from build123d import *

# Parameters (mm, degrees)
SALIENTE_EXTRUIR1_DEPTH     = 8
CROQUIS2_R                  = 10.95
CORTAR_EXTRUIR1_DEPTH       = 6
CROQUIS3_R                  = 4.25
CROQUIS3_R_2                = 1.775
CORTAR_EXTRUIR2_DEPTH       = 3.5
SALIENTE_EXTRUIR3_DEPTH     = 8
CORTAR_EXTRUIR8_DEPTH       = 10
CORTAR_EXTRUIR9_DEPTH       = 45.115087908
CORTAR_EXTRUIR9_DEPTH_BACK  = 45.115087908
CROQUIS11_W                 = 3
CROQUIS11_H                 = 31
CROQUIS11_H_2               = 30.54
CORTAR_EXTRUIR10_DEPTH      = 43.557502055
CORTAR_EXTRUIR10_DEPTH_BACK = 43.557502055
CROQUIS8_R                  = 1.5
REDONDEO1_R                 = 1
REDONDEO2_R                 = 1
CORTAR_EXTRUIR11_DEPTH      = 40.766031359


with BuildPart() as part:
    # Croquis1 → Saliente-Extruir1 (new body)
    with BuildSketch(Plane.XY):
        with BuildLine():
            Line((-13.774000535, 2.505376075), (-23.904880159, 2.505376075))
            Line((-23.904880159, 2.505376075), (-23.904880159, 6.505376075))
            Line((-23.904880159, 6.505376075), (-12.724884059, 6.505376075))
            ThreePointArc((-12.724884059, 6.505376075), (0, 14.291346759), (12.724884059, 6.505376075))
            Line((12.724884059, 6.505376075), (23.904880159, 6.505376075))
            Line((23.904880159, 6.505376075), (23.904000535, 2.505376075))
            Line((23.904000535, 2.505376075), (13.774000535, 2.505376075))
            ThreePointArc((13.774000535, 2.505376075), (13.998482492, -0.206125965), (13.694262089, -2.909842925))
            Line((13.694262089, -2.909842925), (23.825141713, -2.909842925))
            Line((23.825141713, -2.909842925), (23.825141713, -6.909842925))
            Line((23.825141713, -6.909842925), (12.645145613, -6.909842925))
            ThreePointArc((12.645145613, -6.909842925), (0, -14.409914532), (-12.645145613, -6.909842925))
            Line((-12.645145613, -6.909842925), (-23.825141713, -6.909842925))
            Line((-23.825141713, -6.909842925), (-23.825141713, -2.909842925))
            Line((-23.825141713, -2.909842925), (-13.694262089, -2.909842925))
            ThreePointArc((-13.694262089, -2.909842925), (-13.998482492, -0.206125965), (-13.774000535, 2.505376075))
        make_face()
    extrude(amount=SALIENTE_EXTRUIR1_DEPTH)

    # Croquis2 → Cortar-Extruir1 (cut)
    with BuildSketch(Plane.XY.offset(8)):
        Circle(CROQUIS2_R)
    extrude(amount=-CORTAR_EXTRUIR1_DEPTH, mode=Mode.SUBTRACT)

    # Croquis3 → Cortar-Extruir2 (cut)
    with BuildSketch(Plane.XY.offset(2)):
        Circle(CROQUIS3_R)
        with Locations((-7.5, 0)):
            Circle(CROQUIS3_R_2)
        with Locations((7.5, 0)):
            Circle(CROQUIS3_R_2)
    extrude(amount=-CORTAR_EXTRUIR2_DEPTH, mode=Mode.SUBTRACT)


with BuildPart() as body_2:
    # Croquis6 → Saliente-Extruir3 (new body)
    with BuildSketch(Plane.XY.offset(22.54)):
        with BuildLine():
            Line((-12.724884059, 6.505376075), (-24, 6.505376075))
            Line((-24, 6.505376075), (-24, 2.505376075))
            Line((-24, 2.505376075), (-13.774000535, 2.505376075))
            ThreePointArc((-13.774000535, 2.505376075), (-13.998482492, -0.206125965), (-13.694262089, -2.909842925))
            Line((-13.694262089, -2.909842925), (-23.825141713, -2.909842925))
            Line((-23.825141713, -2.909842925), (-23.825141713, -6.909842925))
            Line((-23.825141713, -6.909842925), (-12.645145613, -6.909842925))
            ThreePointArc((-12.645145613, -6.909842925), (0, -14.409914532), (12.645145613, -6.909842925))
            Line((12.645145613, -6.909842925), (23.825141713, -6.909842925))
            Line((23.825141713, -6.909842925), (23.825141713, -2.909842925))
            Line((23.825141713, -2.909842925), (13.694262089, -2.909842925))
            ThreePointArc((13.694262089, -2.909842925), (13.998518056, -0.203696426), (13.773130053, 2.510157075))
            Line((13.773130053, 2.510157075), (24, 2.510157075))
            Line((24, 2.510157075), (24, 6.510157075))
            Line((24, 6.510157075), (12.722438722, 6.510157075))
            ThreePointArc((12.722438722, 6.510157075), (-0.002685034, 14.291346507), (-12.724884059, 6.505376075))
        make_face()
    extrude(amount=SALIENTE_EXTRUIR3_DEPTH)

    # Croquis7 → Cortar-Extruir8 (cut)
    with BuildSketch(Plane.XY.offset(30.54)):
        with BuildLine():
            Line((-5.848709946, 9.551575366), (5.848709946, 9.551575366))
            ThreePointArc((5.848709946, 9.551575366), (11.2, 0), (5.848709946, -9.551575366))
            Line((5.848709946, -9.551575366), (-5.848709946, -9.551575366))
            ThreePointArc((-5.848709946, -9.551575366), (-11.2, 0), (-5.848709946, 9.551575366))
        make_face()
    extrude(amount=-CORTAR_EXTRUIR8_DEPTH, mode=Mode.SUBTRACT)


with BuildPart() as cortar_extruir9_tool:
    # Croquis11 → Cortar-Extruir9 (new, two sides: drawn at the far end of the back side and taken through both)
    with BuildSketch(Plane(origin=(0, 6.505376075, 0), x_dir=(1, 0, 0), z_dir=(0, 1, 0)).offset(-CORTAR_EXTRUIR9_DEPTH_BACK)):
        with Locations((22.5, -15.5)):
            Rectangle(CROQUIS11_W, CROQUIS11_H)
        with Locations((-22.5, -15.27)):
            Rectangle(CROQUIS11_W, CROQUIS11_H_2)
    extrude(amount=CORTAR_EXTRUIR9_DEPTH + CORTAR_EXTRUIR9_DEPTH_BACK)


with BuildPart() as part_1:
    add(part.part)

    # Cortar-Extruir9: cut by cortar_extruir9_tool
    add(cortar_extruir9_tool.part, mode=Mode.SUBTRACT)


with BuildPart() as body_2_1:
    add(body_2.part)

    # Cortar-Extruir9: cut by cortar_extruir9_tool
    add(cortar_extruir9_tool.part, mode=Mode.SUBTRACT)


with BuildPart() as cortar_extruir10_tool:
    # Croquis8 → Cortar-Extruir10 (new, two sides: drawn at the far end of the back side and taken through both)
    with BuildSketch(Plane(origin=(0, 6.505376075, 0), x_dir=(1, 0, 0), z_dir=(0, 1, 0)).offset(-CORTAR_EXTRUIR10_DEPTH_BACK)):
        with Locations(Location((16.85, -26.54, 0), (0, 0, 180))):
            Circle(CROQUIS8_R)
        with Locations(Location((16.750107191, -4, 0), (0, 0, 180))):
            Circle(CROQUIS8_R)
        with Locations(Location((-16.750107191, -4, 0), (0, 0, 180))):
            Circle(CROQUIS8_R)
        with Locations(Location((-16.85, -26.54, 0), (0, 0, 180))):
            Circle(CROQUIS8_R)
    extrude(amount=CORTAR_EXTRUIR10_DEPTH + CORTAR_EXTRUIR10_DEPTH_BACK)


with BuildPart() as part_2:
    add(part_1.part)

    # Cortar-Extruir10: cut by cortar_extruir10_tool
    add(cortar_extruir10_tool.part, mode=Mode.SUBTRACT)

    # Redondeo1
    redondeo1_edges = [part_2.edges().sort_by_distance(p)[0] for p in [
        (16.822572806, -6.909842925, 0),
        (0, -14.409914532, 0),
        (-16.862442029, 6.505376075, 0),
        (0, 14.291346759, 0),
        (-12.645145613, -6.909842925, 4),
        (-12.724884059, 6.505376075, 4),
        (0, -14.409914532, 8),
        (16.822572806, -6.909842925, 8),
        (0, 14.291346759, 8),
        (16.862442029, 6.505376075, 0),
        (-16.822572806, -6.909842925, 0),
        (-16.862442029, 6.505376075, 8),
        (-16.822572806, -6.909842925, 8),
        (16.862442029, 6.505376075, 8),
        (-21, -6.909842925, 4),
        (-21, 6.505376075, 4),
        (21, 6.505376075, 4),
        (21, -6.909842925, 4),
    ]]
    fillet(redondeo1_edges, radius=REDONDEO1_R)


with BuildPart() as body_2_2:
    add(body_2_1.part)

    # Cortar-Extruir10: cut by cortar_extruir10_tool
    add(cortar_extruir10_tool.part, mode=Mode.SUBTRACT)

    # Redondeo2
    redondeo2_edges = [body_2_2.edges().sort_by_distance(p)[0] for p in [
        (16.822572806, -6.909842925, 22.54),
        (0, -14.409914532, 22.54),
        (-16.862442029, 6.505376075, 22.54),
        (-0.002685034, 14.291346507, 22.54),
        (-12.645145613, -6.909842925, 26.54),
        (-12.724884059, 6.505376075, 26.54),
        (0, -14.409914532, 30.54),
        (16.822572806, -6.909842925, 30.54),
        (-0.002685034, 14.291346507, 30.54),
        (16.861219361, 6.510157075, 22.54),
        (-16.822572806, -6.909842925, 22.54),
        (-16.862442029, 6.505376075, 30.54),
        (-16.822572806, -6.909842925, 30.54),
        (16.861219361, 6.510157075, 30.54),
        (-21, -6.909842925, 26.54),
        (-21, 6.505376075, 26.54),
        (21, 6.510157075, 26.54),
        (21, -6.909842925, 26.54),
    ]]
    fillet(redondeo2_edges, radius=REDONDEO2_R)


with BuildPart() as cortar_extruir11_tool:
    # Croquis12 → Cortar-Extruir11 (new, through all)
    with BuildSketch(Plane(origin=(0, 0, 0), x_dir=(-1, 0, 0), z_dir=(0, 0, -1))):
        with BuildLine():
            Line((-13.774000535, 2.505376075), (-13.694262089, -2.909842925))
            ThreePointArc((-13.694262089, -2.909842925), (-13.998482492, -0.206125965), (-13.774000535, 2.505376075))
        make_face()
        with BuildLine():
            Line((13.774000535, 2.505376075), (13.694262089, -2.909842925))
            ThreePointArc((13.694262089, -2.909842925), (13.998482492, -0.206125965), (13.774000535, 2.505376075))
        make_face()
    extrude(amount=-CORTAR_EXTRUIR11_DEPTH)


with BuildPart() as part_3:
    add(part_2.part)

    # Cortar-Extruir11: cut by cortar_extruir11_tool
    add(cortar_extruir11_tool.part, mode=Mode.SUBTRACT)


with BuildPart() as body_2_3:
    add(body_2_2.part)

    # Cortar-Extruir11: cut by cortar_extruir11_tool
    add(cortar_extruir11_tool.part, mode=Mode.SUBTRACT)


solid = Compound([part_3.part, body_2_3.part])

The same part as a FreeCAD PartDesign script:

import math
import FreeCAD as App
import Part
import Sketcher
Q = App.Units.Quantity


def edges_at(feature, points):
    """Names of the edges that pass closest to the given points."""
    edges = feature.Shape.Edges
    near = lambda p: min(range(len(edges)), key=lambda i: edges[i].distToShape(Part.Vertex(*p))[0])
    return sorted({f"Edge{near(p) + 1}" for p in points})

doc = App.newDocument("Part")
body = doc.addObject("PartDesign::Body", "Body")

# Sketch on XY plane
sketch1 = doc.addObject("Sketcher::SketchObject", "Sketch")
body.addObject(sketch1)
sketch1.AttachmentSupport = (doc.XY_Plane, [""])
sketch1.MapMode = "FlatFace"
sketch1.addGeometry([
    Part.LineSegment(App.Vector(-23.9, 2.5, 0), App.Vector(-13.8, 2.5, 0)),  # 0
    Part.ArcOfCircle(Part.Circle(App.Vector(0, 0, 0), App.Vector(0, 0, 1), 14), math.radians(170), math.radians(192)),  # 1
    Part.LineSegment(App.Vector(-13.7, -2.9, 0), App.Vector(-23.8, -2.9, 0)),  # 2
    Part.LineSegment(App.Vector(-23.8, -2.9, 0), App.Vector(-23.8, -6.9, 0)),  # 3
    Part.LineSegment(App.Vector(-23.8, -6.9, 0), App.Vector(-12.6, -6.9, 0)),  # 4
    Part.ArcOfCircle(Part.Circle(App.Vector(0, 0, 0), App.Vector(0, 0, 1), 14.4), math.radians(-151), math.radians(-29)),  # 5
    Part.LineSegment(App.Vector(12.6, -6.9, 0), App.Vector(23.8, -6.9, 0)),  # 6
    Part.LineSegment(App.Vector(23.8, -6.9, 0), App.Vector(23.8, -2.9, 0)),  # 7
    Part.LineSegment(App.Vector(23.8, -2.9, 0), App.Vector(13.7, -2.9, 0)),  # 8
    Part.ArcOfCircle(Part.Circle(App.Vector(0, 0, 0), App.Vector(0, 0, 1), 14), math.radians(-12), math.radians(10)),  # 9
    Part.LineSegment(App.Vector(13.8, 2.5, 0), App.Vector(23.9, 2.5, 0)),  # 10
    Part.LineSegment(App.Vector(23.9, 2.5, 0), App.Vector(23.9, 6.5, 0)),  # 11
    Part.LineSegment(App.Vector(23.9, 6.5, 0), App.Vector(12.7, 6.5, 0)),  # 12
    Part.ArcOfCircle(Part.Circle(App.Vector(0, 0, 0), App.Vector(0, 0, 1), 14.3), math.radians(27), math.radians(153)),  # 13
    Part.LineSegment(App.Vector(-12.7, 6.5, 0), App.Vector(-23.9, 6.5, 0)),  # 14
    Part.LineSegment(App.Vector(-23.9, 6.5, 0), App.Vector(-23.9, 2.5, 0)),  # 15
], False)
sketch1.addConstraint([
    Sketcher.Constraint("Coincident", 0, 2, 1, 1),
    Sketcher.Constraint("Coincident", 1, 2, 2, 1),
    Sketcher.Constraint("Coincident", 2, 2, 3, 1),
    Sketcher.Constraint("Coincident", 3, 2, 4, 1),
    Sketcher.Constraint("Coincident", 4, 2, 5, 1),
    Sketcher.Constraint("Coincident", 5, 2, 6, 1),
    Sketcher.Constraint("Coincident", 6, 2, 7, 1),
    Sketcher.Constraint("Coincident", 7, 2, 8, 1),
    Sketcher.Constraint("Coincident", 8, 2, 9, 1),
    Sketcher.Constraint("Coincident", 9, 2, 10, 1),
    Sketcher.Constraint("Coincident", 10, 2, 11, 1),
    Sketcher.Constraint("Coincident", 11, 2, 12, 1),
    Sketcher.Constraint("Coincident", 12, 2, 13, 1),
    Sketcher.Constraint("Coincident", 13, 2, 14, 1),
    Sketcher.Constraint("Coincident", 14, 2, 15, 1),
    Sketcher.Constraint("Coincident", 15, 2, 0, 1),
    Sketcher.Constraint("Horizontal", 0),
    Sketcher.Constraint("Horizontal", 2),
    Sketcher.Constraint("Vertical", 3),
    Sketcher.Constraint("Horizontal", 4),
    Sketcher.Constraint("Horizontal", 6),
    Sketcher.Constraint("Vertical", 7),
    Sketcher.Constraint("Horizontal", 8),
    Sketcher.Constraint("Horizontal", 10),
    Sketcher.Constraint("Horizontal", 12),
    Sketcher.Constraint("Horizontal", 14),
    Sketcher.Constraint("Vertical", 15),
    Sketcher.Constraint("Coincident", 1, 3, -1, 1),
    Sketcher.Constraint("Coincident", 5, 3, -1, 1),
    Sketcher.Constraint("Coincident", 9, 3, -1, 1),
    Sketcher.Constraint("Coincident", 13, 3, -1, 1),
    Sketcher.Constraint("Equal", 1, 9),
    Sketcher.Constraint("Symmetric", 3, 2, 6, 2, -2),
    Sketcher.Constraint("Symmetric", 11, 2, 14, 2, -2),
    Sketcher.Constraint("Horizontal", 2, 2, 7, 2),
    Sketcher.Constraint("Horizontal", 0, 2, 9, 2),
    Sketcher.Constraint("Equal", 0, 2),
    Sketcher.Constraint("Equal", 6, 12),
    Sketcher.Constraint("Equal", 7, 15),
    Sketcher.Constraint("Radius", 1, Q("14 mm")),
    Sketcher.Constraint("DistanceY", 3, 2, 3, 1, Q("4 mm")),
    Sketcher.Constraint("DistanceX", 10, 1, 10, 2, Q("10.13 mm")),
    Sketcher.Constraint("DistanceX", 0, 2, -1, 1, Q("13.774001 mm")),
    Sketcher.Constraint("Radius", 5, Q("14.409915 mm")),
    Sketcher.Constraint("Radius", 13, Q("14.291347 mm")),
    Sketcher.Constraint("DistanceX", 0, 1, 0, 2, Q("10.13088 mm")),
])
pad1 = doc.addObject("PartDesign::Pad", "Pad")
body.addObject(pad1)
pad1.Profile = sketch1
pad1.Length = 8

# Sketch on XY plane
sketch2 = doc.addObject("Sketcher::SketchObject", "Sketch001")
body.addObject(sketch2)
sketch2.AttachmentSupport = (doc.XY_Plane, [""])
sketch2.MapMode = "FlatFace"
sketch2.AttachmentOffset = App.Placement(App.Vector(0, 0, 8), App.Rotation())
sketch2.addGeometry(Part.Circle(App.Vector(0, 0, 0), App.Vector(0, 0, 1), 11), False)
sketch2.addConstraint([
    Sketcher.Constraint("Coincident", 0, 3, -1, 1),
    Sketcher.Constraint("Diameter", 0, Q("21.9 mm")),
])
pocket1 = doc.addObject("PartDesign::Pocket", "Pocket")
body.addObject(pocket1)
pocket1.Profile = sketch2
pocket1.Length = 6

# Sketch on XY plane
sketch3 = doc.addObject("Sketcher::SketchObject", "Sketch002")
body.addObject(sketch3)
sketch3.AttachmentSupport = (doc.XY_Plane, [""])
sketch3.MapMode = "FlatFace"
sketch3.AttachmentOffset = App.Placement(App.Vector(0, 0, 2), App.Rotation())
sketch3.addGeometry([
    Part.Circle(App.Vector(0, 0, 0), App.Vector(0, 0, 1), 4.2),
    Part.Circle(App.Vector(-7.5, 0, 0), App.Vector(0, 0, 1), 1.8),
    Part.Circle(App.Vector(7.5, 0, 0), App.Vector(0, 0, 1), 1.8),
], False)
sketch3.addConstraint([
    Sketcher.Constraint("Coincident", 0, 3, -1, 1),
    Sketcher.Constraint("Equal", 1, 2),
    Sketcher.Constraint("Symmetric", 1, 3, 2, 3, -1, 1),
    Sketcher.Constraint("PointOnObject", 1, 3, -1),
    Sketcher.Constraint("Diameter", 0, Q("8.5 mm")),
    Sketcher.Constraint("Diameter", 1, Q("3.55 mm")),
    Sketcher.Constraint("DistanceX", 1, 3, 2, 3, Q("15 mm")),
])
pocket2 = doc.addObject("PartDesign::Pocket", "Pocket001")
body.addObject(pocket2)
pocket2.Profile = sketch3
pocket2.Length = 3.5
body2 = doc.addObject("PartDesign::Body", "Body001")

# Sketch on XY plane
sketch4 = doc.addObject("Sketcher::SketchObject", "Sketch003")
body2.addObject(sketch4)
sketch4.AttachmentSupport = (doc.getObject("XY_Plane001"), [""])
sketch4.MapMode = "FlatFace"
sketch4.AttachmentOffset = App.Placement(App.Vector(0, 0, 22.54), App.Rotation())
sketch4.addGeometry([
    Part.LineSegment(App.Vector(-12.7, 6.5, 0), App.Vector(-24, 6.5, 0)),  # 0
    Part.LineSegment(App.Vector(-24, 6.5, 0), App.Vector(-24, 2.5, 0)),  # 1
    Part.LineSegment(App.Vector(-24, 2.5, 0), App.Vector(-13.8, 2.5, 0)),  # 2
    Part.ArcOfCircle(Part.Circle(App.Vector(0, 0, 0), App.Vector(0, 0, 1), 14), math.radians(170), math.radians(192)),  # 3
    Part.LineSegment(App.Vector(-13.7, -2.9, 0), App.Vector(-23.8, -2.9, 0)),  # 4
    Part.LineSegment(App.Vector(-23.8, -2.9, 0), App.Vector(-23.8, -6.9, 0)),  # 5
    Part.LineSegment(App.Vector(-23.8, -6.9, 0), App.Vector(-12.6, -6.9, 0)),  # 6
    Part.ArcOfCircle(Part.Circle(App.Vector(0, 0, 0), App.Vector(0, 0, 1), 14.4), math.radians(-151), math.radians(-29)),  # 7
    Part.LineSegment(App.Vector(12.6, -6.9, 0), App.Vector(23.8, -6.9, 0)),  # 8
    Part.LineSegment(App.Vector(23.8, -6.9, 0), App.Vector(23.8, -2.9, 0)),  # 9
    Part.LineSegment(App.Vector(23.8, -2.9, 0), App.Vector(13.7, -2.9, 0)),  # 10
    Part.ArcOfCircle(Part.Circle(App.Vector(0, 0, 0), App.Vector(0, 0, 1), 14), math.radians(-12), math.radians(10)),  # 11
    Part.LineSegment(App.Vector(13.8, 2.5, 0), App.Vector(24, 2.5, 0)),  # 12
    Part.LineSegment(App.Vector(24, 2.5, 0), App.Vector(24, 6.5, 0)),  # 13
    Part.LineSegment(App.Vector(24, 6.5, 0), App.Vector(12.7, 6.5, 0)),  # 14
    Part.ArcOfCircle(Part.Circle(App.Vector(0, 0, 0), App.Vector(0, 0, 1), 14.3), math.radians(27), math.radians(153)),  # 15
], False)
sketch4.addConstraint([
    Sketcher.Constraint("Coincident", 0, 2, 1, 1),
    Sketcher.Constraint("Coincident", 1, 2, 2, 1),
    Sketcher.Constraint("Coincident", 2, 2, 3, 1),
    Sketcher.Constraint("Coincident", 3, 2, 4, 1),
    Sketcher.Constraint("Coincident", 4, 2, 5, 1),
    Sketcher.Constraint("Coincident", 5, 2, 6, 1),
    Sketcher.Constraint("Coincident", 6, 2, 7, 1),
    Sketcher.Constraint("Coincident", 7, 2, 8, 1),
    Sketcher.Constraint("Coincident", 8, 2, 9, 1),
    Sketcher.Constraint("Coincident", 9, 2, 10, 1),
    Sketcher.Constraint("Coincident", 10, 2, 11, 1),
    Sketcher.Constraint("Coincident", 11, 2, 12, 1),
    Sketcher.Constraint("Coincident", 12, 2, 13, 1),
    Sketcher.Constraint("Coincident", 13, 2, 14, 1),
    Sketcher.Constraint("Coincident", 14, 2, 15, 1),
    Sketcher.Constraint("Coincident", 15, 2, 0, 1),
    Sketcher.Constraint("Horizontal", 0),
    Sketcher.Constraint("Vertical", 1),
    Sketcher.Constraint("Horizontal", 2),
    Sketcher.Constraint("Horizontal", 4),
    Sketcher.Constraint("Vertical", 5),
    Sketcher.Constraint("Horizontal", 6),
    Sketcher.Constraint("Horizontal", 8),
    Sketcher.Constraint("Vertical", 9),
    Sketcher.Constraint("Horizontal", 10),
    Sketcher.Constraint("Horizontal", 12),
    Sketcher.Constraint("Vertical", 13),
    Sketcher.Constraint("Horizontal", 14),
    Sketcher.Constraint("Coincident", 3, 3, -1, 1),
    Sketcher.Constraint("Coincident", 7, 3, -1, 1),
    Sketcher.Constraint("Coincident", 11, 3, -1, 1),
    Sketcher.Constraint("Coincident", 15, 3, -1, 1),
    Sketcher.Constraint("Equal", 3, 11),
    Sketcher.Constraint("Symmetric", 5, 2, 8, 2, -2),
    Sketcher.Constraint("Horizontal", 4, 2, 9, 2),
    Sketcher.Constraint("Equal", 1, 5),
    Sketcher.Constraint("Equal", 9, 13),
    Sketcher.Constraint("Radius", 3, Q("14 mm")),
    Sketcher.Constraint("DistanceY", 1, 2, 1, 1, Q("4 mm")),
    Sketcher.Constraint("DistanceX", 0, 2, -1, 1, Q("24 mm")),
    Sketcher.Constraint("DistanceX", -1, 1, 12, 2, Q("24 mm")),
    Sketcher.Constraint("DistanceX", 2, 1, 2, 2, Q("10.225999 mm")),
    Sketcher.Constraint("DistanceY", 10, 2, 11, 2, Q("5.42 mm")),
    Sketcher.Constraint("Radius", 7, Q("14.409915 mm")),
    Sketcher.Constraint("Radius", 15, Q("14.291347 mm")),
    Sketcher.Constraint("DistanceX", 4, 2, 4, 1, Q("10.13088 mm")),
    Sketcher.Constraint("DistanceX", 12, 1, 12, 2, Q("10.22687 mm")),
])
pad2 = doc.addObject("PartDesign::Pad", "Pad001")
body2.addObject(pad2)
pad2.Profile = sketch4
pad2.Length = 8

# Sketch on XY plane
sketch5 = doc.addObject("Sketcher::SketchObject", "Sketch004")
body2.addObject(sketch5)
sketch5.AttachmentSupport = (doc.getObject("XY_Plane001"), [""])
sketch5.MapMode = "FlatFace"
sketch5.AttachmentOffset = App.Placement(App.Vector(0, 0, 30.54), App.Rotation())
sketch5.addGeometry([
    Part.LineSegment(App.Vector(6, 10, 0), App.Vector(-6, 10, 0)),
    Part.ArcOfCircle(Part.Circle(App.Vector(0, 0, 0), App.Vector(0, 0, 1), 11), math.radians(121), math.radians(239)),
    Part.LineSegment(App.Vector(-6, -10, 0), App.Vector(6, -10, 0)),
    Part.ArcOfCircle(Part.Circle(App.Vector(0, 0, 0), App.Vector(0, 0, 1), 11), math.radians(-59), math.radians(59)),
], False)
sketch5.addConstraint([
    Sketcher.Constraint("Coincident", 0, 2, 1, 1),
    Sketcher.Constraint("Coincident", 1, 2, 2, 1),
    Sketcher.Constraint("Coincident", 2, 2, 3, 1),
    Sketcher.Constraint("Coincident", 3, 2, 0, 1),
    Sketcher.Constraint("Horizontal", 0),
    Sketcher.Constraint("Horizontal", 2),
    Sketcher.Constraint("Coincident", 1, 3, -1, 1),
    Sketcher.Constraint("Coincident", 3, 3, -1, 1),
    Sketcher.Constraint("Equal", 1, 3),
    Sketcher.Constraint("Vertical", 0, 2, 1, 2),
    Sketcher.Constraint("Radius", 1, Q("11.2 mm")),
    Sketcher.Constraint("DistanceX", 0, 2, 0, 1, Q("11.69742 mm")),
])
pocket3 = doc.addObject("PartDesign::Pocket", "Pocket002")
body2.addObject(pocket3)
pocket3.Profile = sketch5
pocket3.Length = 10
body3 = doc.addObject("PartDesign::Body", "Body002")
body3.AllowCompound = True

# Sketch on XZ plane
sketch6 = doc.addObject("Sketcher::SketchObject", "Sketch005")
body3.addObject(sketch6)
sketch6.AttachmentSupport = (doc.getObject("XZ_Plane002"), [""])
sketch6.MapMode = "FlatFace"
sketch6.AttachmentOffset = App.Placement(App.Vector(0, 0, -6.505376), App.Rotation())
sketch6.addGeometry([
    Part.LineSegment(App.Vector(21, 0, 0), App.Vector(21, 31, 0)),  # 0
    Part.LineSegment(App.Vector(21, 31, 0), App.Vector(24, 31, 0)),  # 1
    Part.LineSegment(App.Vector(24, 31, 0), App.Vector(24, 0, 0)),  # 2
    Part.LineSegment(App.Vector(24, 0, 0), App.Vector(21, 0, 0)),  # 3
    Part.LineSegment(App.Vector(-24, 0, 0), App.Vector(-24, 30.5, 0)),  # 4
    Part.LineSegment(App.Vector(-24, 30.5, 0), App.Vector(-21, 30.5, 0)),  # 5
    Part.LineSegment(App.Vector(-21, 30.5, 0), App.Vector(-21, 0, 0)),  # 6
    Part.LineSegment(App.Vector(-21, 0, 0), App.Vector(-24, 0, 0)),  # 7
], False)
sketch6.addConstraint([
    Sketcher.Constraint("Coincident", 0, 2, 1, 1),
    Sketcher.Constraint("Coincident", 1, 2, 2, 1),
    Sketcher.Constraint("Coincident", 2, 2, 3, 1),
    Sketcher.Constraint("Coincident", 3, 2, 0, 1),
    Sketcher.Constraint("Coincident", 4, 2, 5, 1),
    Sketcher.Constraint("Coincident", 5, 2, 6, 1),
    Sketcher.Constraint("Coincident", 6, 2, 7, 1),
    Sketcher.Constraint("Coincident", 7, 2, 4, 1),
    Sketcher.Constraint("Vertical", 0),
    Sketcher.Constraint("Horizontal", 1),
    Sketcher.Constraint("Vertical", 2),
    Sketcher.Constraint("Horizontal", 3),
    Sketcher.Constraint("Vertical", 4),
    Sketcher.Constraint("Horizontal", 5),
    Sketcher.Constraint("Vertical", 6),
    Sketcher.Constraint("Horizontal", 7),
    Sketcher.Constraint("Symmetric", 3, 2, 6, 2, -1, 1),
    Sketcher.Constraint("Symmetric", 2, 2, 7, 2, -2),
    Sketcher.Constraint("DistanceX", 1, 1, 1, 2, Q("3 mm")),
    Sketcher.Constraint("DistanceY", 0, 1, 0, 2, Q("31 mm")),
    Sketcher.Constraint("DistanceX", -1, 1, 0, 2, Q("21 mm")),
    Sketcher.Constraint("DistanceY", 4, 1, 4, 2, Q("30.54 mm")),
])
pad3 = doc.addObject("PartDesign::Pad", "Pad002")
body3.addObject(pad3)
pad3.Profile = sketch6
pad3.Type = "TwoLengths"
pad3.Length = 45.115088
pad3.Length2 = 45.115088
pad3.Reversed = True
doc.recompute()

body4 = doc.addObject("PartDesign::Body", "Body003")
body4.BaseFeature = body3
boolean = doc.addObject("PartDesign::Boolean", "Boolean")
body.addObject(boolean)
boolean.Type = "Cut"
boolean.addObjects([body4])
doc.recompute()

boolean2 = doc.addObject("PartDesign::Boolean", "Boolean001")
body2.addObject(boolean2)
boolean2.Type = "Cut"
boolean2.addObjects([body3])
body5 = doc.addObject("PartDesign::Body", "Body004")
body5.AllowCompound = True

# Sketch on XZ plane
sketch7 = doc.addObject("Sketcher::SketchObject", "Sketch006")
body5.addObject(sketch7)
sketch7.AttachmentSupport = (doc.getObject("XZ_Plane004"), [""])
sketch7.MapMode = "FlatFace"
sketch7.AttachmentOffset = App.Placement(App.Vector(0, 0, -6.505376), App.Rotation())
sketch7.addGeometry([
    Part.Circle(App.Vector(16.9, 26.5, 0), App.Vector(0, 0, 1), 1.5),
    Part.Circle(App.Vector(16.8, 4, 0), App.Vector(0, 0, 1), 1.5),
    Part.Circle(App.Vector(-16.8, 4, 0), App.Vector(0, 0, 1), 1.5),
    Part.Circle(App.Vector(-16.9, 26.5, 0), App.Vector(0, 0, 1), 1.5),
], False)
sketch7.addConstraint([
    Sketcher.Constraint("Equal", 0, 1),
    Sketcher.Constraint("Equal", 1, 2),
    Sketcher.Constraint("Equal", 2, 3),
    Sketcher.Constraint("Symmetric", 1, 3, 2, 3, -2),
    Sketcher.Constraint("Symmetric", 0, 3, 3, 3, -2),
    Sketcher.Constraint("Diameter", 0, Q("3 mm")),
    Sketcher.Constraint("DistanceY", -1, 1, 1, 3, Q("4 mm")),
    Sketcher.Constraint("DistanceX", 3, 3, 0, 3, Q("33.7 mm")),
    Sketcher.Constraint("DistanceY", -1, 1, 0, 3, Q("26.54 mm")),
    Sketcher.Constraint("DistanceX", -1, 1, 1, 3, Q("16.750107 mm")),
])
pad4 = doc.addObject("PartDesign::Pad", "Pad003")
body5.addObject(pad4)
pad4.Profile = sketch7
pad4.Type = "TwoLengths"
pad4.Length = 43.557502
pad4.Length2 = 43.557502
pad4.Reversed = True
doc.recompute()

body6 = doc.addObject("PartDesign::Body", "Body005")
body6.BaseFeature = body5
boolean3 = doc.addObject("PartDesign::Boolean", "Boolean002")
body.addObject(boolean3)
boolean3.Type = "Cut"
boolean3.addObjects([body6])
doc.recompute()

fillet = doc.addObject("PartDesign::Fillet", "Fillet")
body.addObject(fillet)
fillet.Base = (boolean3, edges_at(boolean3, [
    (16.823, -6.91, 0),
    (0, -14.41, 0),
    (-16.862, 6.505, 0),
    (0, 14.291, 0),
    (-12.645, -6.91, 4),
    (-12.725, 6.505, 4),
    (0, -14.41, 8),
    (16.823, -6.91, 8),
    (0, 14.291, 8),
    (16.862, 6.505, 0),
    (-16.823, -6.91, 0),
    (-16.862, 6.505, 8),
    (-16.823, -6.91, 8),
    (16.862, 6.505, 8),
    (-21, -6.91, 4),
    (-21, 6.505, 4),
    (21, 6.505, 4),
    (21, -6.91, 4),
]))
fillet.Radius = 1
doc.recompute()

boolean4 = doc.addObject("PartDesign::Boolean", "Boolean003")
body2.addObject(boolean4)
boolean4.Type = "Cut"
boolean4.addObjects([body5])
doc.recompute()

fillet2 = doc.addObject("PartDesign::Fillet", "Fillet001")
body2.addObject(fillet2)
fillet2.Base = (boolean4, edges_at(boolean4, [
    (16.823, -6.91, 22.54),
    (0, -14.41, 22.54),
    (-16.862, 6.505, 22.54),
    (-0.003, 14.291, 22.54),
    (-12.645, -6.91, 26.54),
    (-12.725, 6.505, 26.54),
    (0, -14.41, 30.54),
    (16.823, -6.91, 30.54),
    (-0.003, 14.291, 30.54),
    (16.861, 6.51, 22.54),
    (-16.823, -6.91, 22.54),
    (-16.862, 6.505, 30.54),
    (-16.823, -6.91, 30.54),
    (16.861, 6.51, 30.54),
    (-21, -6.91, 26.54),
    (-21, 6.505, 26.54),
    (21, 6.51, 26.54),
    (21, -6.91, 26.54),
]))
fillet2.Radius = 1
body7 = doc.addObject("PartDesign::Body", "Body006")
body7.AllowCompound = True

# Sketch on XY plane
sketch8 = doc.addObject("Sketcher::SketchObject", "Sketch007")
body7.addObject(sketch8)
sketch8.AttachmentSupport = (doc.getObject("XY_Plane006"), [""])
sketch8.MapMode = "FlatFace"
sketch8.addGeometry([
    Part.LineSegment(App.Vector(14, -3, 0), App.Vector(14, 3, 0)),
    Part.ArcOfCircle(Part.Circle(App.Vector(0, 0, 0), App.Vector(0, 0, 1), 14), math.radians(-12), math.radians(10)),
    Part.LineSegment(App.Vector(-14, 3, 0), App.Vector(-14, -3, 0)),
    Part.ArcOfCircle(Part.Circle(App.Vector(0, 0, 0), App.Vector(0, 0, 1), 14), math.radians(170), math.radians(192)),
], False)
sketch8.addConstraint([
    Sketcher.Constraint("Coincident", 0, 1, 1, 1),
    Sketcher.Constraint("Coincident", 1, 2, 0, 2),
    Sketcher.Constraint("Coincident", 2, 1, 3, 1),
    Sketcher.Constraint("Coincident", 3, 2, 2, 2),
    Sketcher.Constraint("Coincident", 1, 3, -1, 1),
    Sketcher.Constraint("Coincident", 3, 3, -1, 1),
    Sketcher.Constraint("Equal", 1, 3),
    Sketcher.Constraint("Horizontal", 1, 2, 2, 1),
    Sketcher.Constraint("Horizontal", 0, 1, 3, 2),
    Sketcher.Constraint("Radius", 1, Q("14 mm")),
    Sketcher.Constraint("DistanceX", -1, 1, 1, 2, Q("13.774001 mm")),
    Sketcher.Constraint("DistanceX", 0, 1, 1, 2, Q("0.079738 mm")),
])
pad5 = doc.addObject("PartDesign::Pad", "Pad004")
body7.addObject(pad5)
pad5.Profile = sketch8
pad5.Length = 40.766031
doc.recompute()

body8 = doc.addObject("PartDesign::Body", "Body007")
body8.BaseFeature = body7
boolean5 = doc.addObject("PartDesign::Boolean", "Boolean004")
body.addObject(boolean5)
boolean5.Type = "Cut"
boolean5.addObjects([body8])
doc.recompute()

boolean6 = doc.addObject("PartDesign::Boolean", "Boolean005")
body2.addObject(boolean6)
boolean6.Type = "Cut"
boolean6.addObjects([body7])

doc.recompute()
